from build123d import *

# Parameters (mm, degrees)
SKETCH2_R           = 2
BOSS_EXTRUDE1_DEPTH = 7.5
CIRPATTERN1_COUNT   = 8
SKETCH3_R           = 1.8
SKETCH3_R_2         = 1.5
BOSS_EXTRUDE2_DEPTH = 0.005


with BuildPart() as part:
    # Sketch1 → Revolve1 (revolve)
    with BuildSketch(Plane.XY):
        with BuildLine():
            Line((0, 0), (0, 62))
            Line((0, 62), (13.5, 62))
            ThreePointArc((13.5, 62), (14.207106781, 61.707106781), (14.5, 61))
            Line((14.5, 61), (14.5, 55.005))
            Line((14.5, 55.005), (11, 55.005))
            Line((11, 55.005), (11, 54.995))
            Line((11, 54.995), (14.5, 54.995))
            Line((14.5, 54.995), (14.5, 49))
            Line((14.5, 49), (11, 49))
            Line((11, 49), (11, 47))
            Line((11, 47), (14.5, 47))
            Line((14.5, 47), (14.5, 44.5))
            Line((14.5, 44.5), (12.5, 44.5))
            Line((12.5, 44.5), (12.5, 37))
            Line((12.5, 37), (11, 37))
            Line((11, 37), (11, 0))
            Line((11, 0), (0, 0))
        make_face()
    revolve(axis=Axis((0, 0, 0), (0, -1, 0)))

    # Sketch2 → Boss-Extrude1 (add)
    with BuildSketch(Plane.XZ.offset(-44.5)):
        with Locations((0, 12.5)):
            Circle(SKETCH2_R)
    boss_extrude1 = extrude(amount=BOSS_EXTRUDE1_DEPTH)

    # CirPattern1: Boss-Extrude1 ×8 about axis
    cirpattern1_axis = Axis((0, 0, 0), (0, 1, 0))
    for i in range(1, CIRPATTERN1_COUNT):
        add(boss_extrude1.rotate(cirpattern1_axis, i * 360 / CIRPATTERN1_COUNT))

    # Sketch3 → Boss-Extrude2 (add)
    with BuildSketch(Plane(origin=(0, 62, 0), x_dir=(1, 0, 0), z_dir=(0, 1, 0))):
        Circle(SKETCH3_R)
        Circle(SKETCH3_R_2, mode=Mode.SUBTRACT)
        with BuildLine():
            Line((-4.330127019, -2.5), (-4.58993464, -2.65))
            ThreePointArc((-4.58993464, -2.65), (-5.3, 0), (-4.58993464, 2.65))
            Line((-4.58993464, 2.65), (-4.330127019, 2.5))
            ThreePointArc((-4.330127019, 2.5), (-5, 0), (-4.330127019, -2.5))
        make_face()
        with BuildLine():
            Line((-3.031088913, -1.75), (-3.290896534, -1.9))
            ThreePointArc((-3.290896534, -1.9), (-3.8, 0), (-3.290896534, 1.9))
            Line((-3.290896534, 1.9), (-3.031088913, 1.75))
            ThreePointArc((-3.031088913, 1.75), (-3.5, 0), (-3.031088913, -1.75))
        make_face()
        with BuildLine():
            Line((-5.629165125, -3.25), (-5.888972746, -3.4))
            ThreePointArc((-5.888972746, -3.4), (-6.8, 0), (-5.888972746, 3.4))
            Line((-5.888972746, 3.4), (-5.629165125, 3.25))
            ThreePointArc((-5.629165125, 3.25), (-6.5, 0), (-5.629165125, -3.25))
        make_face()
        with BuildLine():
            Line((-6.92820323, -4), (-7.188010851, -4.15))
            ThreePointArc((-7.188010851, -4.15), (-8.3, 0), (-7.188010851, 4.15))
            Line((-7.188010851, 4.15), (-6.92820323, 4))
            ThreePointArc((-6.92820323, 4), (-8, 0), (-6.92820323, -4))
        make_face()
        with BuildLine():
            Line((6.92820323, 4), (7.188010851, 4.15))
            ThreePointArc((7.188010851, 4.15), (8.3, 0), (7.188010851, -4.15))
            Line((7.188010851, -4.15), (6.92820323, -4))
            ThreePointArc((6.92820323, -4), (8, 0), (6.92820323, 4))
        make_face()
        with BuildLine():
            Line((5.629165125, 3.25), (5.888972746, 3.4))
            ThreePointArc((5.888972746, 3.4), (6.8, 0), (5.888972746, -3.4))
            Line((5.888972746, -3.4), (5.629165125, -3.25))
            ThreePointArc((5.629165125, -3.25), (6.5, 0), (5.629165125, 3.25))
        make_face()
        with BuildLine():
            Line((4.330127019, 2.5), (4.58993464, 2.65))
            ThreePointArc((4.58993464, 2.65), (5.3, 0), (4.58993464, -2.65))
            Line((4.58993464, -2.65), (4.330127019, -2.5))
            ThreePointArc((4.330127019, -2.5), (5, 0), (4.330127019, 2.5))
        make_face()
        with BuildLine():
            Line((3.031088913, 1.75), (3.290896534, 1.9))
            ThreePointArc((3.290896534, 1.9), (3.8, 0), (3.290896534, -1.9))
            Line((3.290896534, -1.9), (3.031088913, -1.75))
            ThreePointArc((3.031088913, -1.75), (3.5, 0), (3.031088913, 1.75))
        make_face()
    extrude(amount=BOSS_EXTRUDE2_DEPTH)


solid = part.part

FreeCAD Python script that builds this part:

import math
import FreeCAD as App
import Part
import Sketcher
from FreeCAD import Vector
Q = App.Units.Quantity

doc = App.newDocument("Part")
body = doc.addObject("PartDesign::Body", "Body")

# Sketch on XY plane
sketch1 = doc.addObject("Sketcher::SketchObject", "Sketch")
body.addObject(sketch1)
sketch1.AttachmentSupport = (doc.XY_Plane, [""])
sketch1.MapMode = "FlatFace"
sketch1.addGeometry([
    Part.LineSegment(Vector(0, 62, 0), Vector(0, 0, 0)),  # 0
    Part.LineSegment(Vector(0, 0, 0), Vector(11, 0, 0)),  # 1
    Part.LineSegment(Vector(11, 0, 0), Vector(11, 37, 0)),  # 2
    Part.LineSegment(Vector(11, 37, 0), Vector(12.5, 37, 0)),  # 3
    Part.LineSegment(Vector(12.5, 37, 0), Vector(12.5, 44.5, 0)),  # 4
    Part.LineSegment(Vector(12.5, 44.5, 0), Vector(14.5, 44.5, 0)),  # 5
    Part.LineSegment(Vector(14.5, 44.5, 0), Vector(14.5, 47, 0)),  # 6
    Part.LineSegment(Vector(14.5, 47, 0), Vector(11, 47, 0)),  # 7
    Part.LineSegment(Vector(11, 47, 0), Vector(11, 49, 0)),  # 8
    Part.LineSegment(Vector(11, 49, 0), Vector(14.5, 49, 0)),  # 9
    Part.LineSegment(Vector(14.5, 49, 0), Vector(14.5, 54.995, 0)),  # 10
    Part.LineSegment(Vector(14.5, 54.995, 0), Vector(11, 54.995, 0)),  # 11
    Part.LineSegment(Vector(11, 54.995, 0), Vector(11, 55.005, 0)),  # 12
    Part.LineSegment(Vector(11, 55.005, 0), Vector(14.5, 55.005, 0)),  # 13
    Part.LineSegment(Vector(14.5, 55.005, 0), Vector(14.5, 61, 0)),  # 14
    Part.ArcOfCircle(Part.Circle(Vector(13.5, 61, 0), Vector(0, 0, 1), 1), math.radians(0), math.radians(90)),  # 15
    Part.LineSegment(Vector(13.5, 62, 0), Vector(0, 62, 0)),  # 16
], False)
sketch1.addConstraint([
    Sketcher.Constraint("Coincident", 0, 2, 1, 1),
    Sketcher.Constraint("Coincident", 1, 2, 2, 1),
    Sketcher.Constraint("Coincident", 2, 2, 3, 1),
    Sketcher.Constraint("Coincident", 3, 2, 4, 1),
    Sketcher.Constraint("Coincident", 4, 2, 5, 1),
    Sketcher.Constraint("Coincident", 5, 2, 6, 1),
    Sketcher.Constraint("Coincident", 6, 2, 7, 1),
    Sketcher.Constraint("Coincident", 7, 2, 8, 1),
    Sketcher.Constraint("Coincident", 8, 2, 9, 1),
    Sketcher.Constraint("Coincident", 9, 2, 10, 1),
    Sketcher.Constraint("Coincident", 10, 2, 11, 1),
    Sketcher.Constraint("Coincident", 11, 2, 12, 1),
    Sketcher.Constraint("Coincident", 12, 2, 13, 1),
    Sketcher.Constraint("Coincident", 13, 2, 14, 1),
    Sketcher.Constraint("Tangent", 14, 2, 15, 1),
    Sketcher.Constraint("Tangent", 15, 2, 16, 1),
    Sketcher.Constraint("Coincident", 16, 2, 0, 1),
    Sketcher.Constraint("Vertical", 0),
    Sketcher.Constraint("Horizontal", 1),
    Sketcher.Constraint("Vertical", 2),
    Sketcher.Constraint("Horizontal", 3),
    Sketcher.Constraint("Vertical", 4),
    Sketcher.Constraint("Horizontal", 5),
    Sketcher.Constraint("Vertical", 6),
    Sketcher.Constraint("Horizontal", 7),
    Sketcher.Constraint("Vertical", 8),
    Sketcher.Constraint("Horizontal", 9),
    Sketcher.Constraint("Vertical", 10),
    Sketcher.Constraint("Horizontal", 11),
    Sketcher.Constraint("Vertical", 12),
    Sketcher.Constraint("Horizontal", 13),
    Sketcher.Constraint("Vertical", 14),
    Sketcher.Constraint("Horizontal", 16),
    Sketcher.Constraint("Coincident", 0, 2, -1, 1),
    Sketcher.Constraint("Vertical", 2, 2, 7, 2),
    Sketcher.Constraint("Vertical", 6, 2, 9, 2),
    Sketcher.Constraint("Vertical", 8, 2, 11, 2),
    Sketcher.Constraint("Vertical", 10, 2, 13, 2),
    Sketcher.Constraint("Equal", 5, 8),
    Sketcher.Constraint("Equal", 10, 14),
    Sketcher.Constraint("Radius", 15, 1.0),
    Sketcher.Constraint("DistanceX", 1, 1, 1, 2, 11.0),
    Sketcher.Constraint("DistanceX", 5, 1, 5, 2, 2.0),
    Sketcher.Constraint("DistanceY", 0, 2, 0, 1, 62.0),
    Sketcher.Constraint("DistanceY", 2, 1, 2, 2, 37.0),
    Sketcher.Constraint("DistanceX", 3, 1, 3, 2, 1.5),
    Sketcher.Constraint("DistanceY", 4, 1, 4, 2, 7.5),
    Sketcher.Constraint("DistanceY", 6, 1, 6, 2, 2.5),
    Sketcher.Constraint("DistanceY", 12, 1, 12, 2, 0.01),
])
revolution = doc.addObject("PartDesign::Revolution", "Revolution")
body.addObject(revolution)
revolution.Profile = sketch1
revolution.ReferenceAxis = (sketch1, ["V_Axis"])
revolution.Angle = 360

# Sketch on XZ plane
sketch2 = doc.addObject("Sketcher::SketchObject", "Sketch001")
body.addObject(sketch2)
sketch2.AttachmentSupport = (doc.XZ_Plane, [""])
sketch2.MapMode = "FlatFace"
sketch2.AttachmentOffset = App.Placement(Vector(0, 0, -44.5), App.Rotation())
sketch2.addGeometry(Part.Circle(Vector(0, 12.5, 0), Vector(0, 0, 1), 2), False)
sketch2.addConstraint([
    Sketcher.Constraint("PointOnObject", 0, 3, -2),
    Sketcher.Constraint("Diameter", 0, 4.0),
    Sketcher.Constraint("DistanceY", -1, 1, 0, 3, 12.5),
])
pad1 = doc.addObject("PartDesign::Pad", "Pad")
body.addObject(pad1)
pad1.Profile = sketch2
pad1.Length = 7.5
doc.recompute()

polarpattern = doc.addObject("PartDesign::PolarPattern", "PolarPattern")
body.addObject(polarpattern)
polarpattern.Originals = [pad1]
polarpattern.Axis = (doc.Y_Axis, [""])
polarpattern.Angle = 360
polarpattern.Occurrences = 8
body.Tip = polarpattern

# Sketch on XZ plane
sketch3 = doc.addObject("Sketcher::SketchObject", "Sketch002")
body.addObject(sketch3)
sketch3.AttachmentSupport = (doc.XZ_Plane, [""])
sketch3.MapMode = "FlatFace"
sketch3.AttachmentOffset = App.Placement(Vector(0, 0, -62), App.Rotation())
sketch3.addGeometry([
    Part.Circle(Vector(0, 0, 0), Vector(0, 0, 1), 1.8),  # 0
    Part.Circle(Vector(0, 0, 0), Vector(0, 0, 1), 1.5),  # 1
    Part.LineSegment(Vector(-4.59, 2.65, 0), Vector(-4.33, 2.5, 0)),  # 2
    Part.ArcOfCircle(Part.Circle(Vector(0, 0, 0), Vector(0, 0, 1), 5), math.radians(150), math.radians(210)),  # 3
    Part.LineSegment(Vector(-4.33, -2.5, 0), Vector(-4.59, -2.65, 0)),  # 4
    Part.ArcOfCircle(Part.Circle(Vector(0, 0, 0), Vector(0, 0, 1), 5.3), math.radians(150), math.radians(210)),  # 5
    Part.LineSegment(Vector(-3.29, 1.9, 0), Vector(-3.03, 1.75, 0)),  # 6
    Part.ArcOfCircle(Part.Circle(Vector(0, 0, 0), Vector(0, 0, 1), 3.5), math.radians(150), math.radians(210)),  # 7
    Part.LineSegment(Vector(-3.03, -1.75, 0), Vector(-3.29, -1.9, 0)),  # 8
    Part.ArcOfCircle(Part.Circle(Vector(0, 0, 0), Vector(0, 0, 1), 3.8), math.radians(150), math.radians(210)),  # 9
    Part.LineSegment(Vector(-5.89, 3.4, 0), Vector(-5.63, 3.25, 0)),  # 10
    Part.ArcOfCircle(Part.Circle(Vector(0, 0, 0), Vector(0, 0, 1), 6.5), math.radians(150), math.radians(210)),  # 11
    Part.LineSegment(Vector(-5.63, -3.25, 0), Vector(-5.89, -3.4, 0)),  # 12
    Part.ArcOfCircle(Part.Circle(Vector(0, 0, 0), Vector(0, 0, 1), 6.8), math.radians(150), math.radians(210)),  # 13
    Part.LineSegment(Vector(-7.19, 4.15, 0), Vector(-6.93, 4, 0)),  # 14
    Part.ArcOfCircle(Part.Circle(Vector(0, 0, 0), Vector(0, 0, 1), 8), math.radians(150), math.radians(210)),  # 15
    Part.LineSegment(Vector(-6.93, -4, 0), Vector(-7.19, -4.15, 0)),  # 16
    Part.ArcOfCircle(Part.Circle(Vector(0, 0, 0), Vector(0, 0, 1), 8.3), math.radians(150), math.radians(210)),  # 17
    Part.LineSegment(Vector(7.19, -4.15, 0), Vector(6.93, -4, 0)),  # 18
    Part.ArcOfCircle(Part.Circle(Vector(0, 0, 0), Vector(0, 0, 1), 8), math.radians(-30), math.radians(30)),  # 19
    Part.LineSegment(Vector(6.93, 4, 0), Vector(7.19, 4.15, 0)),  # 20
    Part.ArcOfCircle(Part.Circle(Vector(0, 0, 0), Vector(0, 0, 1), 8.3), math.radians(-30), math.radians(30)),  # 21
    Part.LineSegment(Vector(5.89, -3.4, 0), Vector(5.63, -3.25, 0)),  # 22
    Part.ArcOfCircle(Part.Circle(Vector(0, 0, 0), Vector(0, 0, 1), 6.5), math.radians(-30), math.radians(30)),  # 23
    Part.LineSegment(Vector(5.63, 3.25, 0), Vector(5.89, 3.4, 0)),  # 24
    Part.ArcOfCircle(Part.Circle(Vector(0, 0, 0), Vector(0, 0, 1), 6.8), math.radians(-30), math.radians(30)),  # 25
    Part.LineSegment(Vector(4.59, -2.65, 0), Vector(4.33, -2.5, 0)),  # 26
    Part.ArcOfCircle(Part.Circle(Vector(0, 0, 0), Vector(0, 0, 1), 5), math.radians(-30), math.radians(30)),  # 27
    Part.LineSegment(Vector(4.33, 2.5, 0), Vector(4.59, 2.65, 0)),  # 28
    Part.ArcOfCircle(Part.Circle(Vector(0, 0, 0), Vector(0, 0, 1), 5.3), math.radians(-30), math.radians(30)),  # 29
    Part.LineSegment(Vector(3.29, -1.9, 0), Vector(3.03, -1.75, 0)),  # 30
    Part.ArcOfCircle(Part.Circle(Vector(0, 0, 0), Vector(0, 0, 1), 3.5), math.radians(-30), math.radians(30)),  # 31
    Part.LineSegment(Vector(3.03, 1.75, 0), Vector(3.29, 1.9, 0)),  # 32
    Part.ArcOfCircle(Part.Circle(Vector(0, 0, 0), Vector(0, 0, 1), 3.8), math.radians(-30), math.radians(30)),  # 33
], False)
sketch3.addConstraint([
    Sketcher.Constraint("Coincident", 2, 2, 3, 1),
    Sketcher.Constraint("Coincident", 3, 2, 4, 1),
    Sketcher.Constraint("Coincident", 4, 2, 5, 2),
    Sketcher.Constraint("Coincident", 5, 1, 2, 1),
    Sketcher.Constraint("Coincident", 6, 2, 7, 1),
    Sketcher.Constraint("Coincident", 7, 2, 8, 1),
    Sketcher.Constraint("Coincident", 8, 2, 9, 2),
    Sketcher.Constraint("Coincident", 9, 1, 6, 1),
    Sketcher.Constraint("Coincident", 10, 2, 11, 1),
    Sketcher.Constraint("Coincident", 11, 2, 12, 1),
    Sketcher.Constraint("Coincident", 12, 2, 13, 2),
    Sketcher.Constraint("Coincident", 13, 1, 10, 1),
    Sketcher.Constraint("Coincident", 14, 2, 15, 1),
    Sketcher.Constraint("Coincident", 15, 2, 16, 1),
    Sketcher.Constraint("Coincident", 16, 2, 17, 2),
    Sketcher.Constraint("Coincident", 17, 1, 14, 1),
    Sketcher.Constraint("Coincident", 18, 2, 19, 1),
    Sketcher.Constraint("Coincident", 19, 2, 20, 1),
    Sketcher.Constraint("Coincident", 20, 2, 21, 2),
    Sketcher.Constraint("Coincident", 21, 1, 18, 1),
    Sketcher.Constraint("Coincident", 22, 2, 23, 1),
    Sketcher.Constraint("Coincident", 23, 2, 24, 1),
    Sketcher.Constraint("Coincident", 24, 2, 25, 2),
    Sketcher.Constraint("Coincident", 25, 1, 22, 1),
    Sketcher.Constraint("Coincident", 26, 2, 27, 1),
    Sketcher.Constraint("Coincident", 27, 2, 28, 1),
    Sketcher.Constraint("Coincident", 28, 2, 29, 2),
    Sketcher.Constraint("Coincident", 29, 1, 26, 1),
    Sketcher.Constraint("Coincident", 30, 2, 31, 1),
    Sketcher.Constraint("Coincident", 31, 2, 32, 1),
    Sketcher.Constraint("Coincident", 32, 2, 33, 2),
    Sketcher.Constraint("Coincident", 33, 1, 30, 1),
    Sketcher.Constraint("Coincident", 0, 3, -1, 1),
    Sketcher.Constraint("Coincident", 1, 3, -1, 1),
    Sketcher.Constraint("Coincident", 3, 3, -1, 1),
    Sketcher.Constraint("Coincident", 5, 3, -1, 1),
    Sketcher.Constraint("Coincident", 7, 3, -1, 1),
    Sketcher.Constraint("Coincident", 9, 3, -1, 1),
    Sketcher.Constraint("Coincident", 11, 3, -1, 1),
    Sketcher.Constraint("Coincident", 13, 3, -1, 1),
    Sketcher.Constraint("Coincident", 15, 3, -1, 1),
    Sketcher.Constraint("Coincident", 17, 3, -1, 1),
    Sketcher.Constraint("Coincident", 19, 3, -1, 1),
    Sketcher.Constraint("Coincident", 21, 3, -1, 1),
    Sketcher.Constraint("Coincident", 23, 3, -1, 1),
    Sketcher.Constraint("Coincident", 25, 3, -1, 1),
    Sketcher.Constraint("Coincident", 27, 3, -1, 1),
    Sketcher.Constraint("Coincident", 29, 3, -1, 1),
    Sketcher.Constraint("Coincident", 31, 3, -1, 1),
    Sketcher.Constraint("Coincident", 33, 3, -1, 1),
    Sketcher.Constraint("Equal", 15, 19),
    Sketcher.Constraint("Equal", 17, 21),
    Sketcher.Constraint("Equal", 11, 23),
    Sketcher.Constraint("Equal", 13, 25),
    Sketcher.Constraint("Equal", 3, 27),
    Sketcher.Constraint("Equal", 5, 29),
    Sketcher.Constraint("Equal", 7, 31),
    Sketcher.Constraint("Equal", 9, 33),
    Sketcher.Constraint("Parallel", 2, 6),
    Sketcher.Constraint("Parallel", 4, 8),
    Sketcher.Constraint("Parallel", 6, 10),
    Sketcher.Constraint("Parallel", 8, 12),
    Sketcher.Constraint("Parallel", 10, 14),
    Sketcher.Constraint("Parallel", 12, 16),
    Sketcher.Constraint("Parallel", 14, 18),
    Sketcher.Constraint("Parallel", 16, 20),
    Sketcher.Constraint("Parallel", 18, 22),
    Sketcher.Constraint("Parallel", 20, 24),
    Sketcher.Constraint("Parallel", 22, 26),
    Sketcher.Constraint("Parallel", 24, 28),
    Sketcher.Constraint("Parallel", 26, 30),
    Sketcher.Constraint("Parallel", 28, 32),
    Sketcher.Constraint("Horizontal", 15, 2, 18, 2),
    Sketcher.Constraint("Horizontal", 14, 2, 19, 2),
    Sketcher.Constraint("Horizontal", 17, 1, 20, 2),
    Sketcher.Constraint("Horizontal", 11, 2, 22, 2),
    Sketcher.Constraint("Horizontal", 10, 2, 23, 2),
    Sketcher.Constraint("Horizontal", 3, 2, 26, 2),
    Sketcher.Constraint("Horizontal", 2, 2, 27, 2),
    Sketcher.Constraint("Horizontal", 7, 2, 30, 2),
    Sketcher.Constraint("Horizontal", 6, 2, 31, 2),
    Sketcher.Constraint("Vertical", 2, 2, 3, 2),
    Sketcher.Constraint("Vertical", 6, 2, 7, 2),
    Sketcher.Constraint("Vertical", 10, 2, 11, 2),
    Sketcher.Constraint("Vertical", 14, 2, 15, 2),
    Sketcher.Constraint("Equal", 4, 6),
    Sketcher.Constraint("Equal", 8, 10),
    Sketcher.Constraint("Equal", 12, 14),
    Sketcher.Constraint("Diameter", 1, 3.0),
    Sketcher.Constraint("Radius", 3, 5.0),
    Sketcher.Constraint("Radius", 15, 8.0),
    Sketcher.Constraint("Diameter", 0, 3.6),
    Sketcher.Constraint("Radius", 5, 5.3),
    Sketcher.Constraint("Radius", 7, 3.5),
    Sketcher.Constraint("Radius", 11, 6.5),
    Sketcher.Constraint("Angle", 2, Q("-30 deg")),
    Sketcher.Constraint("DistanceY", -1, 1, 14, 2, 4.0),
    Sketcher.Constraint("DistanceY", 7, 2, 10, 2, 5.0),
    Sketcher.Constraint("DistanceY", -1, 1, 2, 2, 2.5),
    Sketcher.Constraint("DistanceY", 8, 2, -1, 1, 1.9),
])
pad2 = doc.addObject("PartDesign::Pad", "Pad001")
body.addObject(pad2)
pad2.Profile = sketch3
pad2.Length = 0.005
pad2.Reversed = True

doc.recompute()
